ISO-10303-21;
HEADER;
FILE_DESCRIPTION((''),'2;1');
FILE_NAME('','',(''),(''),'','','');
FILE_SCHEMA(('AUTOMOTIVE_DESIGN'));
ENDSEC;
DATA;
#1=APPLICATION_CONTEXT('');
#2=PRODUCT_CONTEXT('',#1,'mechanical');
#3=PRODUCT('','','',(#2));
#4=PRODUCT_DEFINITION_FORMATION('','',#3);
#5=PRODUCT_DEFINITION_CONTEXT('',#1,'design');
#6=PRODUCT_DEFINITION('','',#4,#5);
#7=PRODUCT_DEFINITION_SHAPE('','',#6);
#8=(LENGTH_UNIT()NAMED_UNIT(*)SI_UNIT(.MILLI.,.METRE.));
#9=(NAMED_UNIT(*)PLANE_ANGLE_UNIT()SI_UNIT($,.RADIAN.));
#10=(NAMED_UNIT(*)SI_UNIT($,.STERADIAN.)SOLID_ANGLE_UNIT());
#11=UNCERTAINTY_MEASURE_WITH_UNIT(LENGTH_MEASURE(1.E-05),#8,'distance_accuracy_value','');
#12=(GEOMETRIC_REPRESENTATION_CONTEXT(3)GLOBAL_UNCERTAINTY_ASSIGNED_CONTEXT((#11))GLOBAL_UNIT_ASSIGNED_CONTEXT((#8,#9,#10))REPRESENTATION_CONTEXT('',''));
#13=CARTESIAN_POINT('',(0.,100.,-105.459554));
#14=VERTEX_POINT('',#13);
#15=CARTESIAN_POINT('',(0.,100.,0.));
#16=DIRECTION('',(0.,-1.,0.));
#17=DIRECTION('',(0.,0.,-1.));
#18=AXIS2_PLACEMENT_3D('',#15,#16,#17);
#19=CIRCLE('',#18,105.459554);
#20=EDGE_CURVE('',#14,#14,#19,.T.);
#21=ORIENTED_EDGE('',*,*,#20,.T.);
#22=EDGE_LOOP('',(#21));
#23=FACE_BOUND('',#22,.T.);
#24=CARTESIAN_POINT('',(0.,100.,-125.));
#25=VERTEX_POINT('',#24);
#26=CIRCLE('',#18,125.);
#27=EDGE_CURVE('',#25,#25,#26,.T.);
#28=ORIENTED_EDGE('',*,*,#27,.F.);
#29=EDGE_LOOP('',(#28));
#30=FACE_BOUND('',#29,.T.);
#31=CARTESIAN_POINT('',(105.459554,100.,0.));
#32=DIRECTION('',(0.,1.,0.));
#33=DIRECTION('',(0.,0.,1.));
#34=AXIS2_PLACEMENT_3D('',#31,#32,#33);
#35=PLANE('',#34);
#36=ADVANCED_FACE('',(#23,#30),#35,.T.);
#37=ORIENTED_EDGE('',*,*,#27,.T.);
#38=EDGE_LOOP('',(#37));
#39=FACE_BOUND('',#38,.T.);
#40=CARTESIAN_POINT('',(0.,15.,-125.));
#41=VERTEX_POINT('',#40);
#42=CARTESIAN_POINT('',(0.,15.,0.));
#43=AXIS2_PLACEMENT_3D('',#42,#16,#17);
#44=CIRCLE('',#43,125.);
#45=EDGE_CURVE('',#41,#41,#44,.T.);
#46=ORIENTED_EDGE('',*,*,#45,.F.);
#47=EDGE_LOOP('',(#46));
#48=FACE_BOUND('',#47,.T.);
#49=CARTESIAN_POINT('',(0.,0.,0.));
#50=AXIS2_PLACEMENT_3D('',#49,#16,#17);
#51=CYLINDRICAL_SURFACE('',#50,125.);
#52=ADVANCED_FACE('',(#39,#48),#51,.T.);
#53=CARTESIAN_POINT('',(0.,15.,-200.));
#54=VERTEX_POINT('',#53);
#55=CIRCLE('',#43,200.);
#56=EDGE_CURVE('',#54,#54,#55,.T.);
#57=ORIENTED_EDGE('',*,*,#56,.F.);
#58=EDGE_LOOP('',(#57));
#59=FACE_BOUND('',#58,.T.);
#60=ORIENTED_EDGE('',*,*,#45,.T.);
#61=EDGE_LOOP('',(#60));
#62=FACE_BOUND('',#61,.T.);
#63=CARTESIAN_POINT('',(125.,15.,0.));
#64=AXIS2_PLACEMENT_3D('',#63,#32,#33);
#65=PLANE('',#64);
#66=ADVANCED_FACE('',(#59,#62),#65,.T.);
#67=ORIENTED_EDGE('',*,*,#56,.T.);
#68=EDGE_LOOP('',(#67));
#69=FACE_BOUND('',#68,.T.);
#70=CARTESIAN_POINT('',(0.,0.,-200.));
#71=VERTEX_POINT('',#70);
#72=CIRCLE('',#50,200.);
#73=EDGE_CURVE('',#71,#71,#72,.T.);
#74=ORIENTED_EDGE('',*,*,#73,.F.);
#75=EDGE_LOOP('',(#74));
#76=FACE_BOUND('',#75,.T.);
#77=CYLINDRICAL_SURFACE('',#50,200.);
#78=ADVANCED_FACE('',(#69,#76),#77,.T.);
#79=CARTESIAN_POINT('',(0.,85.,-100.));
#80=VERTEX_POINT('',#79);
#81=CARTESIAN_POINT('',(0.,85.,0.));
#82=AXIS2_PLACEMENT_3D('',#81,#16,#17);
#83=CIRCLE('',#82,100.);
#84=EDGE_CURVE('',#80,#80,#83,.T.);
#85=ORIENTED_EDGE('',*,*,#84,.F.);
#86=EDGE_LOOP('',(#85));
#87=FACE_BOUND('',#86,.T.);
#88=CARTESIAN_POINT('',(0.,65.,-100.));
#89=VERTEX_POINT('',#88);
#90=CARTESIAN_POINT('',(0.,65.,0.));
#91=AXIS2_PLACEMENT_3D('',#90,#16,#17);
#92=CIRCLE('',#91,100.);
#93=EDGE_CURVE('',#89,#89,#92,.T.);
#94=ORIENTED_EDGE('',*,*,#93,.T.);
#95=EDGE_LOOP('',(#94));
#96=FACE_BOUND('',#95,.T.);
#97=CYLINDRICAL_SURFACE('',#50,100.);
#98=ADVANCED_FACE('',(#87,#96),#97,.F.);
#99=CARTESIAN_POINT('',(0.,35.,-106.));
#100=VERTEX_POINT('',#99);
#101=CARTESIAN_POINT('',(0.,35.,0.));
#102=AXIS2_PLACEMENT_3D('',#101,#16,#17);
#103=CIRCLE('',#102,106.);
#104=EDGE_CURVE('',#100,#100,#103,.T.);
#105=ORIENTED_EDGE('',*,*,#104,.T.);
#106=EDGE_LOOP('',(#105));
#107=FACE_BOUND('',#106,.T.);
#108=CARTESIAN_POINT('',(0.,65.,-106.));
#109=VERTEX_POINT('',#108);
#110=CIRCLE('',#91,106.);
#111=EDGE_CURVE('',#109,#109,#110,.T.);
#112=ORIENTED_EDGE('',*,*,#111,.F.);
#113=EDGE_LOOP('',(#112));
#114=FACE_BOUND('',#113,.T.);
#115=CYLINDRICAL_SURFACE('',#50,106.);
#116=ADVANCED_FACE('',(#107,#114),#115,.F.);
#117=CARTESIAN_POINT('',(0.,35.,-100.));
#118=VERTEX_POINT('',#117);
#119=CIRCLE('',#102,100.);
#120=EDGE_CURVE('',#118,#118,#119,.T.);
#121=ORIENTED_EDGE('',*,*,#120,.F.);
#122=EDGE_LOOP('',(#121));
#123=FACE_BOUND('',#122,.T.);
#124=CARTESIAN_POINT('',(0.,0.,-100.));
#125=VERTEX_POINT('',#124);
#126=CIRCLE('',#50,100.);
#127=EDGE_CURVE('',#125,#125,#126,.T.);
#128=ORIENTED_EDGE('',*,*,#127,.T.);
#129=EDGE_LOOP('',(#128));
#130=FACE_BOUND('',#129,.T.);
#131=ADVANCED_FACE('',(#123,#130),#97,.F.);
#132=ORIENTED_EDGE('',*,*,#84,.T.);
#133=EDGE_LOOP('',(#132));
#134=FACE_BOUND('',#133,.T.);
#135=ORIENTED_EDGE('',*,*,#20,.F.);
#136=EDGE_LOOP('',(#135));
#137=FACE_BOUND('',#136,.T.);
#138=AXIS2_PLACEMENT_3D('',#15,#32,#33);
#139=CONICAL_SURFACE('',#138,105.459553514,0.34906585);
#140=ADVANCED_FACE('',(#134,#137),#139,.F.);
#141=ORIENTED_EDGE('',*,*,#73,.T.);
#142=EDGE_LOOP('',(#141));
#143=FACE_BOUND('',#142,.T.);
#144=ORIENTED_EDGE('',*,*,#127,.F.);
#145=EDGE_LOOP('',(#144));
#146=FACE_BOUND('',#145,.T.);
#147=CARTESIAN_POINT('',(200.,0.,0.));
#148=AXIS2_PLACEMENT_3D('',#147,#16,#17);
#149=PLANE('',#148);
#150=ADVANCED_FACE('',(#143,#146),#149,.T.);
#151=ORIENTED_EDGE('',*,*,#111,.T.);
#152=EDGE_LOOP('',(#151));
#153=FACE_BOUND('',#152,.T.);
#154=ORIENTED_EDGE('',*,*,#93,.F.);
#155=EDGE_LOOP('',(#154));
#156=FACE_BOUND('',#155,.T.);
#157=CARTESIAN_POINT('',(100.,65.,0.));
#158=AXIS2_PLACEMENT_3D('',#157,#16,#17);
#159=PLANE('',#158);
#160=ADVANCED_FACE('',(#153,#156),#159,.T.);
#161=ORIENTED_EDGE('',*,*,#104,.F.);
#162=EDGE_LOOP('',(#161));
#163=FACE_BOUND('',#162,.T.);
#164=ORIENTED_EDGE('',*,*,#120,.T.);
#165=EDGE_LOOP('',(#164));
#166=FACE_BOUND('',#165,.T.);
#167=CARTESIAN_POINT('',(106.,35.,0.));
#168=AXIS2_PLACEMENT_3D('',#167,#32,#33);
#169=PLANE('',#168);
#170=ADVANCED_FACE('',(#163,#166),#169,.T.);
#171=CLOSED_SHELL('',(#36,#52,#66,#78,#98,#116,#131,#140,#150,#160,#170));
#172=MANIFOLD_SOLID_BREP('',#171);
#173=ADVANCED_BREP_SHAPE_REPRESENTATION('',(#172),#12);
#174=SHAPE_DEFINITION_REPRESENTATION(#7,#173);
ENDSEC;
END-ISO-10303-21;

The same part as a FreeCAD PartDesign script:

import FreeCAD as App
import Part
import Sketcher
Q = App.Units.Quantity


def add_polygon(sketch, points):
    """Adds a closed chain of lines whose ends are joined by coincident constraints."""
    first, n = sketch.GeometryCount, len(points)
    for a, b in zip(points, points[1:] + points[:1]):
        sketch.addGeometry(Part.LineSegment(App.Vector(*a, 0), App.Vector(*b, 0)), False)
    for i in range(n):
        sketch.addConstraint(Sketcher.Constraint("Coincident", first + i, 2, first + (i + 1) % n, 1))

doc = App.newDocument("Part")
body = doc.addObject("PartDesign::Body", "Body")

# Sketch on XY plane
sketch1 = body.newObject("Sketcher::SketchObject", "Sketch")
sketch1.AttachmentSupport = (doc.getObject("XY_Plane"), [""])
sketch1.MapMode = "FlatFace"
add_polygon(sketch1, [(100, 35), (100, 0), (200, 0), (200, 15), (125, 15), (125, 100), (105.459554, 100), (100, 85), (100, 65), (106, 65), (106, 35)])  # lines 0-10
sketch1.addConstraint(Sketcher.Constraint("Vertical", 0))
sketch1.addConstraint(Sketcher.Constraint("Horizontal", 1))
sketch1.addConstraint(Sketcher.Constraint("Vertical", 2))
sketch1.addConstraint(Sketcher.Constraint("Horizontal", 3))
sketch1.addConstraint(Sketcher.Constraint("Vertical", 4))
sketch1.addConstraint(Sketcher.Constraint("Horizontal", 5))
sketch1.addConstraint(Sketcher.Constraint("Vertical", 7))
sketch1.addConstraint(Sketcher.Constraint("Horizontal", 8))
sketch1.addConstraint(Sketcher.Constraint("Vertical", 9))
sketch1.addConstraint(Sketcher.Constraint("Horizontal", 10))
sketch1.addConstraint(Sketcher.Constraint("PointOnObject", 0, 2, -1))
sketch1.addConstraint(Sketcher.Constraint("Vertical", 0, 2, 6, 2))
sketch1.addConstraint(Sketcher.Constraint("DistanceX", 1, 1, 1, 2, Q("100 mm")))
sketch1.addConstraint(Sketcher.Constraint("DistanceX", 3, 2, 3, 1, Q("75 mm")))
sketch1.addConstraint(Sketcher.Constraint("DistanceX", 8, 1, 8, 2, Q("6 mm")))
sketch1.addConstraint(Sketcher.Constraint("DistanceY", 0, 2, 0, 1, Q("35 mm")))
sketch1.addConstraint(Sketcher.Constraint("DistanceY", 2, 1, 2, 2, Q("15 mm")))
sketch1.addConstraint(Sketcher.Constraint("DistanceY", 4, 1, 4, 2, Q("85 mm")))
sketch1.addConstraint(Sketcher.Constraint("DistanceY", 7, 2, 7, 1, Q("20 mm")))
sketch1.addConstraint(Sketcher.Constraint("DistanceY", 9, 2, 9, 1, Q("30 mm")))
sketch1.addConstraint(Sketcher.Constraint("Angle", 6, Q("-110 deg")))
sketch1.addConstraint(Sketcher.Constraint("DistanceX", -1, 1, 0, 2, Q("100 mm")))
revolution = body.newObject("PartDesign::Revolution", "Revolution")
revolution.Profile = sketch1
revolution.ReferenceAxis = (sketch1, ["V_Axis"])
revolution.Angle = 360

doc.recompute()
